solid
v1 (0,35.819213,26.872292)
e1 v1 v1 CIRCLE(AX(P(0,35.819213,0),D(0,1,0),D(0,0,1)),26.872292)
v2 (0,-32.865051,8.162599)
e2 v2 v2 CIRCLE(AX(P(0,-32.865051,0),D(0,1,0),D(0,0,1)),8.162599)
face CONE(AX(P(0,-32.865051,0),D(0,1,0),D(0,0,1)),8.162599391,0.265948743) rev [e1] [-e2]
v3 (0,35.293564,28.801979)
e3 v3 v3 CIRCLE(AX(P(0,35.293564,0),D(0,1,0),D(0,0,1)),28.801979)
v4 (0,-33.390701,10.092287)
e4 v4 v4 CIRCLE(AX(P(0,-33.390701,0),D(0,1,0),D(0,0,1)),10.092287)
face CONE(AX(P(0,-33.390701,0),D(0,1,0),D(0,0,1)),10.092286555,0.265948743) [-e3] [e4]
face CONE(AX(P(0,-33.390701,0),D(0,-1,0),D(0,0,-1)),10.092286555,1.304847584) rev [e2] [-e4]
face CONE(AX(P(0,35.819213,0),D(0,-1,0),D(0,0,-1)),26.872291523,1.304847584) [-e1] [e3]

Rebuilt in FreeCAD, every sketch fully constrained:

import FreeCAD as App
import Part
import Sketcher

V = App.Vector

doc = App.newDocument("Part")
body = doc.addObject("PartDesign::Body", "Body")

# Sketch on XY plane
sketch1 = body.newObject("Sketcher::SketchObject", "Sketch")
sketch1.AttachmentSupport = (doc.getObject("XY_Plane"), [""])
sketch1.MapMode = "FlatFace"
sketch1.addGeometry([
    Part.LineSegment(V(26.872292, 35.819213, 0), V(8.162599, -32.865051, 0)),
    Part.LineSegment(V(8.162599, -32.865051, 0), V(10.092287, -33.390701, 0)),
    Part.LineSegment(V(10.092287, -33.390701, 0), V(28.801979, 35.293564, 0)),
    Part.LineSegment(V(28.801979, 35.293564, 0), V(26.872292, 35.819213, 0)),
], False)
sketch1.addConstraint([
    Sketcher.Constraint("Coincident", 0, 2, 1, 1),
    Sketcher.Constraint("Coincident", 1, 2, 2, 1),
    Sketcher.Constraint("Coincident", 2, 2, 3, 1),
    Sketcher.Constraint("Coincident", 3, 2, 0, 1),
    Sketcher.Constraint("Distance", 1, 2.0),
    Sketcher.Constraint("Distance", 3, 2.0),
    Sketcher.Constraint("DistanceX", -1, 1, 0, 2, 8.162599),
    Sketcher.Constraint("DistanceY", 1, 2, -1, 1, 33.390701),
    Sketcher.Constraint("DistanceY", 0, 2, -1, 1, 32.865051),
    Sketcher.Constraint("DistanceX", -1, 1, 2, 2, 28.801979),
    Sketcher.Constraint("DistanceX", -1, 1, 3, 2, 26.872292),
    Sketcher.Constraint("Distance", 0, 71.186942),
])
revolution = body.newObject("PartDesign::Revolution", "Revolution")
revolution.Profile = sketch1
revolution.ReferenceAxis = (sketch1, ["V_Axis"])
revolution.Angle = 360

doc.recompute()
